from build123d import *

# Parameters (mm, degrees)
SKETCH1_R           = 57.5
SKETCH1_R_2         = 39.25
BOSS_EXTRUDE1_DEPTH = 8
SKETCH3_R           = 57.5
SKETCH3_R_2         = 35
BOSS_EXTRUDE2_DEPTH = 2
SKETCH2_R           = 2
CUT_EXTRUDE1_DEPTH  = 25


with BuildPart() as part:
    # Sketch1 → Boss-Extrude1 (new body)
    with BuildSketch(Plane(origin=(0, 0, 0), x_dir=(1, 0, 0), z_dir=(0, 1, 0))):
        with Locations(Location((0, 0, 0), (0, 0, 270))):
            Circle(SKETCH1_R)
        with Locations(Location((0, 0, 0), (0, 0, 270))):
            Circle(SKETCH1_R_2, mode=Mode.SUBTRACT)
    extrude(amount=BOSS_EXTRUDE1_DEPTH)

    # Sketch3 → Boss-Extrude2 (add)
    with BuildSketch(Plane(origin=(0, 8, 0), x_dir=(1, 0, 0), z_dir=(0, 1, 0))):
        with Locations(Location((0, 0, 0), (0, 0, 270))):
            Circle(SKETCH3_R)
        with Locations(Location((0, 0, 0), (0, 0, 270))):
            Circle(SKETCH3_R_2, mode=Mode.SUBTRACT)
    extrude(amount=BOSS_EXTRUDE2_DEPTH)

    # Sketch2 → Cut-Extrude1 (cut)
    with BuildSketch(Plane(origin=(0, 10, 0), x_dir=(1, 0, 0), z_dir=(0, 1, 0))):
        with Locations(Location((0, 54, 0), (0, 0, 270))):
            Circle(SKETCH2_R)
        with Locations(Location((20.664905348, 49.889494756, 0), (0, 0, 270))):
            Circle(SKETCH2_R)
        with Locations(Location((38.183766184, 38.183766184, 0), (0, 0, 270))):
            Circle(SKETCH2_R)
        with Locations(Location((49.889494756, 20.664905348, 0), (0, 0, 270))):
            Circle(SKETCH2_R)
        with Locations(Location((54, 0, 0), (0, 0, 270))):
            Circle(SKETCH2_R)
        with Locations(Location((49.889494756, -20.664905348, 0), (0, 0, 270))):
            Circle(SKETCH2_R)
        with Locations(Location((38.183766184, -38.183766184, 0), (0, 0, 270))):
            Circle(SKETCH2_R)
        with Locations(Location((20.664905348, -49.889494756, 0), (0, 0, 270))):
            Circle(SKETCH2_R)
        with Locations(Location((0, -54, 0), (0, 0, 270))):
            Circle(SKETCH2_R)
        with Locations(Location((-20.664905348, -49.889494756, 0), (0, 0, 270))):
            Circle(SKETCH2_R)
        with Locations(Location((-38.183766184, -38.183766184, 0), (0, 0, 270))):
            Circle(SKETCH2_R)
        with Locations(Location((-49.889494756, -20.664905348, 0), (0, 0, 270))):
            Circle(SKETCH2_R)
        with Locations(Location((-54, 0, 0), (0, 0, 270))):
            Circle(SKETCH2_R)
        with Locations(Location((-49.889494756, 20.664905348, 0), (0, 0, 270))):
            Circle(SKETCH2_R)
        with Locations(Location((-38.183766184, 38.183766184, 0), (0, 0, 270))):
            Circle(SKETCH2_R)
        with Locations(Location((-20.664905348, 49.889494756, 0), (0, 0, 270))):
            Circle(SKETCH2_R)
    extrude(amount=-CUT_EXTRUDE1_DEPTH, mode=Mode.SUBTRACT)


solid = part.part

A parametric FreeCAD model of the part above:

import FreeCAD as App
import Part
import Sketcher

V = App.Vector

doc = App.newDocument("Part")
body = doc.addObject("PartDesign::Body", "Body")

# Sketch on XZ plane
sketch1 = body.newObject("Sketcher::SketchObject", "Sketch")
sketch1.AttachmentSupport = (doc.getObject("XZ_Plane"), [""])
sketch1.MapMode = "FlatFace"
sketch1.addGeometry([
    Part.Circle(V(0, 0, 0), V(0, 0, 1), 57.5),
    Part.Circle(V(0, 0, 0), V(0, 0, 1), 39.25),
], False)
sketch1.addConstraint([
    Sketcher.Constraint("Coincident", 0, 3, -1, 1),
    Sketcher.Constraint("Coincident", 1, 3, -1, 1),
    Sketcher.Constraint("Diameter", 0, 115.0),
    Sketcher.Constraint("Diameter", 1, 78.5),
])
pad1 = body.newObject("PartDesign::Pad", "Pad")
pad1.Profile = sketch1
pad1.Length = 8
pad1.Reversed = True

# Sketch on XZ plane
sketch2 = body.newObject("Sketcher::SketchObject", "Sketch001")
sketch2.AttachmentSupport = (doc.getObject("XZ_Plane"), [""])
sketch2.MapMode = "FlatFace"
sketch2.AttachmentOffset = App.Placement(V(0, 0, -8), App.Rotation())
sketch2.addGeometry([
    Part.Circle(V(0, 0, 0), V(0, 0, 1), 57.5),
    Part.Circle(V(0, 0, 0), V(0, 0, 1), 35),
], False)
sketch2.addConstraint([
    Sketcher.Constraint("Coincident", 0, 3, -1, 1),
    Sketcher.Constraint("Coincident", 1, 3, -1, 1),
    Sketcher.Constraint("Diameter", 0, 115.0),
    Sketcher.Constraint("Diameter", 1, 70.0),
])
pad2 = body.newObject("PartDesign::Pad", "Pad001")
pad2.Profile = sketch2
pad2.Length = 2
pad2.Reversed = True

# Sketch on XZ plane
sketch3 = body.newObject("Sketcher::SketchObject", "Sketch002")
sketch3.AttachmentSupport = (doc.getObject("XZ_Plane"), [""])
sketch3.MapMode = "FlatFace"
sketch3.AttachmentOffset = App.Placement(V(0, 0, -10), App.Rotation())
sketch3.addGeometry([
    Part.Circle(V(0, -54, 0), V(0, 0, 1), 2),  # 0
    Part.Circle(V(20.664905, -49.889495, 0), V(0, 0, 1), 2),  # 1
    Part.Circle(V(38.183766, -38.183766, 0), V(0, 0, 1), 2),  # 2
    Part.Circle(V(49.889495, -20.664905, 0), V(0, 0, 1), 2),  # 3
    Part.Circle(V(54, 0, 0), V(0, 0, 1), 2),  # 4
    Part.Circle(V(49.889495, 20.664905, 0), V(0, 0, 1), 2),  # 5
    Part.Circle(V(38.183766, 38.183766, 0), V(0, 0, 1), 2),  # 6
    Part.Circle(V(20.664905, 49.889495, 0), V(0, 0, 1), 2),  # 7
    Part.Circle(V(0, 54, 0), V(0, 0, 1), 2),  # 8
    Part.Circle(V(-20.664905, 49.889495, 0), V(0, 0, 1), 2),  # 9
    Part.Circle(V(-38.183766, 38.183766, 0), V(0, 0, 1), 2),  # 10
    Part.Circle(V(-49.889495, 20.664905, 0), V(0, 0, 1), 2),  # 11
    Part.Circle(V(-54, 0, 0), V(0, 0, 1), 2),  # 12
    Part.Circle(V(-49.889495, -20.664905, 0), V(0, 0, 1), 2),  # 13
    Part.Circle(V(-38.183766, -38.183766, 0), V(0, 0, 1), 2),  # 14
    Part.Circle(V(-20.664905, -49.889495, 0), V(0, 0, 1), 2),  # 15
], False)
sketch3.addConstraint([
    Sketcher.Constraint("Equal", 0, 1),
    Sketcher.Constraint("Equal", 1, 2),
    Sketcher.Constraint("Equal", 2, 3),
    Sketcher.Constraint("Equal", 3, 4),
    Sketcher.Constraint("Equal", 4, 5),
    Sketcher.Constraint("Equal", 5, 6),
    Sketcher.Constraint("Equal", 6, 7),
    Sketcher.Constraint("Equal", 7, 8),
    Sketcher.Constraint("Equal", 8, 9),
    Sketcher.Constraint("Equal", 9, 10),
    Sketcher.Constraint("Equal", 10, 11),
    Sketcher.Constraint("Equal", 11, 12),
    Sketcher.Constraint("Equal", 12, 13),
    Sketcher.Constraint("Equal", 13, 14),
    Sketcher.Constraint("Equal", 14, 15),
    Sketcher.Constraint("Symmetric", 0, 3, 8, 3, -1, 1),
    Sketcher.Constraint("Symmetric", 1, 3, 9, 3, -1, 1),
    Sketcher.Constraint("Symmetric", 2, 3, 10, 3, -1, 1),
    Sketcher.Constraint("Symmetric", 3, 3, 11, 3, -1, 1),
    Sketcher.Constraint("Symmetric", 4, 3, 12, 3, -1, 1),
    Sketcher.Constraint("Symmetric", 5, 3, 13, 3, -1, 1),
    Sketcher.Constraint("Symmetric", 6, 3, 14, 3, -1, 1),
    Sketcher.Constraint("Symmetric", 7, 3, 15, 3, -1, 1),
    Sketcher.Constraint("Symmetric", 7, 3, 9, 3, -2),
    Sketcher.Constraint("Symmetric", 6, 3, 10, 3, -2),
    Sketcher.Constraint("Symmetric", 5, 3, 11, 3, -2),
    Sketcher.Constraint("PointOnObject", 0, 3, -2),
    Sketcher.Constraint("PointOnObject", 4, 3, -1),
    Sketcher.Constraint("Diameter", 0, 4.0),
    Sketcher.Constraint("DistanceY", 0, 3, -1, 1, 54.0),
    Sketcher.Constraint("DistanceX", -1, 1, 4, 3, 54.0),
    Sketcher.Constraint("DistanceY", 1, 3, 5, 3, 70.5544),
    Sketcher.Constraint("DistanceX", 9, 3, 5, 3, 70.5544),
    Sketcher.Constraint("DistanceX", 1, 3, 2, 3, 17.518861),
    Sketcher.Constraint("DistanceY", 1, 3, 2, 3, 11.705729),
    Sketcher.Constraint("DistanceX", 2, 3, 3, 3, 11.705729),
    Sketcher.Constraint("DistanceY", 2, 3, 3, 3, 17.518861),
])
pocket1 = body.newObject("PartDesign::Pocket", "Pocket")
pocket1.Profile = sketch3
pocket1.Length = 25
pocket1.Reversed = True

doc.recompute()
